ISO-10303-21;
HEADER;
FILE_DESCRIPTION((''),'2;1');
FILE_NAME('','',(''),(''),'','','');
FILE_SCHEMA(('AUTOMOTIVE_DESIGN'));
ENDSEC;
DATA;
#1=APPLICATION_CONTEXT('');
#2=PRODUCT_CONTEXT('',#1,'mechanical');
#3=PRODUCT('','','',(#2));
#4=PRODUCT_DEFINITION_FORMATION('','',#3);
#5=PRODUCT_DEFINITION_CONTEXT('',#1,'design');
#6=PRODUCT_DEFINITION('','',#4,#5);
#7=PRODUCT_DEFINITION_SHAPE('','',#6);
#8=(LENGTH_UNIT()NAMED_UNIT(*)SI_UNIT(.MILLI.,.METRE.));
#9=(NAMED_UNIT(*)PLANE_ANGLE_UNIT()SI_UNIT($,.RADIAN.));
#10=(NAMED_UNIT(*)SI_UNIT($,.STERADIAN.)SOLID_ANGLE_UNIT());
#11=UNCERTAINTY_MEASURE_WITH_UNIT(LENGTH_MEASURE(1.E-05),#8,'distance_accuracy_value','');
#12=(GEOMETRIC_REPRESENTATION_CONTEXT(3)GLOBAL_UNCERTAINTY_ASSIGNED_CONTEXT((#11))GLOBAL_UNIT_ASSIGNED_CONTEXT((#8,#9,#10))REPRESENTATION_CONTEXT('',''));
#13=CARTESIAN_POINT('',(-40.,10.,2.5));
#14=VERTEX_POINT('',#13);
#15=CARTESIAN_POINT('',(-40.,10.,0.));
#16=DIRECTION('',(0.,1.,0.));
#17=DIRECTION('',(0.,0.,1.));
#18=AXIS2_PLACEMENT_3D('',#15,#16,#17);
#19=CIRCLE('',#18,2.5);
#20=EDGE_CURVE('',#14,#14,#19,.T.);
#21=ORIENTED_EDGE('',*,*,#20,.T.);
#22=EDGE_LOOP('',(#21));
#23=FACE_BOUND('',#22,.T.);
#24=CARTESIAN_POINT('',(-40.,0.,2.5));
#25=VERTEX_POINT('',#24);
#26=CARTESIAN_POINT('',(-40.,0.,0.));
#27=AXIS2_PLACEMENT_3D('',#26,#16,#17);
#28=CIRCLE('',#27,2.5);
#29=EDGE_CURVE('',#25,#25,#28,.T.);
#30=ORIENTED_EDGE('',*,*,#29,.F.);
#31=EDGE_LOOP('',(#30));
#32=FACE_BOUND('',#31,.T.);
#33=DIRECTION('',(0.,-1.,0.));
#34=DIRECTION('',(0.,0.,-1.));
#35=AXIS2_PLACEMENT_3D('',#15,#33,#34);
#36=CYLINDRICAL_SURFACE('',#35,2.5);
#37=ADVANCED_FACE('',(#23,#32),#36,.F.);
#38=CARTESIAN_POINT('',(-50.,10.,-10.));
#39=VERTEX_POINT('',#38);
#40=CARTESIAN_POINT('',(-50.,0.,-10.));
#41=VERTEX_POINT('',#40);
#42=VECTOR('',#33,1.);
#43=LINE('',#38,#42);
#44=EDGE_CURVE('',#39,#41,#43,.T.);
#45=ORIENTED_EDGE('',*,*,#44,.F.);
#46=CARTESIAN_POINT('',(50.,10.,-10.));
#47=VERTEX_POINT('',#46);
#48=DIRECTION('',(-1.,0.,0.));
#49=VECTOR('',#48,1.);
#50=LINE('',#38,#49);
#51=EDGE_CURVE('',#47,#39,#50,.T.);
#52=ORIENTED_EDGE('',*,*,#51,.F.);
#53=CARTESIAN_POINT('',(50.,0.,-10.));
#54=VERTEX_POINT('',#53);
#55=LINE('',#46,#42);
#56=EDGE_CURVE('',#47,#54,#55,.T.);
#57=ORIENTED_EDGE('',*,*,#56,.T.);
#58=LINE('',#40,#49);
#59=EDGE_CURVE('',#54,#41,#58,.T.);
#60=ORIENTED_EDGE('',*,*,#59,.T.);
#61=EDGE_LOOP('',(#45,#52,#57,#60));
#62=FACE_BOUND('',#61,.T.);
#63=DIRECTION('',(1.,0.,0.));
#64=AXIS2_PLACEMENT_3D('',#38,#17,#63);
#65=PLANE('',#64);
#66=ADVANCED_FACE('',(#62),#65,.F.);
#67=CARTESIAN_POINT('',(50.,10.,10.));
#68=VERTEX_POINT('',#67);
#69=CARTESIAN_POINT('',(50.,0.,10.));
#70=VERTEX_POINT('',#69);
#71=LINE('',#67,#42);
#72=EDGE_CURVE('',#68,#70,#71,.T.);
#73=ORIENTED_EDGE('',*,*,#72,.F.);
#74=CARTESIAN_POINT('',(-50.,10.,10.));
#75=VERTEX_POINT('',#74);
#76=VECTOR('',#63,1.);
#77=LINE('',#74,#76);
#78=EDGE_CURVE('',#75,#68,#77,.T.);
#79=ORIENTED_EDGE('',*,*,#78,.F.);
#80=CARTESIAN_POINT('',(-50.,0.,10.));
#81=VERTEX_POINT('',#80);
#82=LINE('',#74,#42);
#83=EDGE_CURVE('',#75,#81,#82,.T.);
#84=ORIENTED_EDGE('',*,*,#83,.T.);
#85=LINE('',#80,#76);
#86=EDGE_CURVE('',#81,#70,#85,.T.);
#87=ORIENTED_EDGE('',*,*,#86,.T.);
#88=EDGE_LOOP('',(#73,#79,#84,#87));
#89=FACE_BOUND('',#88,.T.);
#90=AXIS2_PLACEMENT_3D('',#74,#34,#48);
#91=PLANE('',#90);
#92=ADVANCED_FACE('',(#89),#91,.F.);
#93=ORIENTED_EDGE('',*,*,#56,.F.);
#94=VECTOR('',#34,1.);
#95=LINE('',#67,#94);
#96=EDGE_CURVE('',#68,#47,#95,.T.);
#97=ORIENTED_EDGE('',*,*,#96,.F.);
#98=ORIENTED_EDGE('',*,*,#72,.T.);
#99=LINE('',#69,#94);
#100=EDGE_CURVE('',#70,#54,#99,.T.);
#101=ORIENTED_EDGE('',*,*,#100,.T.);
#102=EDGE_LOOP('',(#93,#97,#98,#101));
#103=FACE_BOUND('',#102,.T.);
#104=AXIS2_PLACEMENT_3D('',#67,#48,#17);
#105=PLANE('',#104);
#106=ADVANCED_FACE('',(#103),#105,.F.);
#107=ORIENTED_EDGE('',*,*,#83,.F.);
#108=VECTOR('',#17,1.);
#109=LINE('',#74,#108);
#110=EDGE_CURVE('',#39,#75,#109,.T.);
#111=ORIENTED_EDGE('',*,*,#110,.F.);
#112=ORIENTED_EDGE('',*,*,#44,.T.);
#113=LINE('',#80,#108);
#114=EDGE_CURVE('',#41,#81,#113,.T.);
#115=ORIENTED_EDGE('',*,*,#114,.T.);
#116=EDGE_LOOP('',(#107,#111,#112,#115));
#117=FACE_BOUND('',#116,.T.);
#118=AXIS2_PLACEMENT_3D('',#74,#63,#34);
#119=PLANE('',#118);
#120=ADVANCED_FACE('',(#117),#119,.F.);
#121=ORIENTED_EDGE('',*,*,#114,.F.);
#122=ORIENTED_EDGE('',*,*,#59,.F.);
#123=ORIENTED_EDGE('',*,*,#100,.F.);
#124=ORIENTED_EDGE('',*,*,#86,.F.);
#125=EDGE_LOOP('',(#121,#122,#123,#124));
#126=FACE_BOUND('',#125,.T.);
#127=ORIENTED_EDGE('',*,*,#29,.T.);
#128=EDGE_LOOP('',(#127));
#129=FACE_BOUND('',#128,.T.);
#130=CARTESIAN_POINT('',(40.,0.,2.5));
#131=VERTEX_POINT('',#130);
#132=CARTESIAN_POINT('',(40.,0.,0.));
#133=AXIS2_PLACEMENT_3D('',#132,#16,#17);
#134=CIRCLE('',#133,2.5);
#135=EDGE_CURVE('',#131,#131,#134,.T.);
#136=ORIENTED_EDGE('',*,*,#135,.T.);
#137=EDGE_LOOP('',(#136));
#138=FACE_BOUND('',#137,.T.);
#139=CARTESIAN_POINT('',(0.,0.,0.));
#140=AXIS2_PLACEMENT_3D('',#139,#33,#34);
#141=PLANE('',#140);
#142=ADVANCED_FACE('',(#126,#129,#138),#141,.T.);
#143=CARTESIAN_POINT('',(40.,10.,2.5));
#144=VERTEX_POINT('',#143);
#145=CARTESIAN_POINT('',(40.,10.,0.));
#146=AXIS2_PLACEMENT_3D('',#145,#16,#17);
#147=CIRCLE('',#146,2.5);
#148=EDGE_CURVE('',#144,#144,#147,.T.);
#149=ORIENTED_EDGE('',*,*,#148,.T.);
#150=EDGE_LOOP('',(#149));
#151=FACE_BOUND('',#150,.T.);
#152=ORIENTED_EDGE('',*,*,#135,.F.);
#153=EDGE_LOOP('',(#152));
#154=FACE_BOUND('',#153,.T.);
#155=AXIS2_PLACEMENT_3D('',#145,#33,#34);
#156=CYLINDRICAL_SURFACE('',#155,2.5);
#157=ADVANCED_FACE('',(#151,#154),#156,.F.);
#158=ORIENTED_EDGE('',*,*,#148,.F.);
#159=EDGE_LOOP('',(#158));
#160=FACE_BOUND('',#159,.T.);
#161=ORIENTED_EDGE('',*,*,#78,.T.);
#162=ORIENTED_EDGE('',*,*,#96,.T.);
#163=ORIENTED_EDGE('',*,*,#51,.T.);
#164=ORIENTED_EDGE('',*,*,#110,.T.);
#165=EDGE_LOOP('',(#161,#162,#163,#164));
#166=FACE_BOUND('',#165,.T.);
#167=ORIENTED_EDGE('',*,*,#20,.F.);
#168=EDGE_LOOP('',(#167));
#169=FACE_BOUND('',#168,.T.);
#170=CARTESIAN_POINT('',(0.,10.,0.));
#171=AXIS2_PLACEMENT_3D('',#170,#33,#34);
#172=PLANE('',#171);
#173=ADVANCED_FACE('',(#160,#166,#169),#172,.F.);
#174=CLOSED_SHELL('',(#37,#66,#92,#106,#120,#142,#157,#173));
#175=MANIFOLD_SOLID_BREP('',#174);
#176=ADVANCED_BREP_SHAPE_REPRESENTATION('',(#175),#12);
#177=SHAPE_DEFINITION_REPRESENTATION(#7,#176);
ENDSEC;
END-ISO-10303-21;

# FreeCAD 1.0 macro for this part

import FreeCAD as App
import Part
import Sketcher


def add_polygon(sketch, points):
    """Adds a closed chain of lines whose ends are joined by coincident constraints."""
    first, n = sketch.GeometryCount, len(points)
    for a, b in zip(points, points[1:] + points[:1]):
        sketch.addGeometry(Part.LineSegment(App.Vector(*a, 0), App.Vector(*b, 0)), False)
    for i in range(n):
        sketch.addConstraint(Sketcher.Constraint("Coincident", first + i, 2, first + (i + 1) % n, 1))

doc = App.newDocument("Part")
params = doc.addObject("Spreadsheet::Sheet", "Params")
for row, (alias, value) in enumerate([
    ("sketch1_diameter", "5 mm"),
    ("sketch1_width", "100 mm"),
    ("sketch1_height", "20 mm"),
    ("pad1_length", "10 mm"),
], start=1):
    params.set(f"A{row}", alias)
    params.set(f"B{row}", "=" + value)
    params.setAlias(f"B{row}", alias)

body = doc.addObject("PartDesign::Body", "Body")

# Sketch on XZ plane
sketch1 = body.newObject("Sketcher::SketchObject", "Sketch")
sketch1.AttachmentSupport = (doc.getObject("XZ_Plane"), [""])
sketch1.MapMode = "FlatFace"
add_polygon(sketch1, [(-50, -10), (-50, 10), (50, 10), (50, -10)])  # lines 0-3
sketch1.addGeometry(Part.Circle(App.Vector(-40, 0, 0), App.Vector(0, 0, 1), 2.5), False)  # 4
sketch1.addGeometry(Part.Circle(App.Vector(40, 0, 0), App.Vector(0, 0, 1), 2.5), False)  # 5
sketch1.addConstraint(Sketcher.Constraint("Vertical", 0))
sketch1.addConstraint(Sketcher.Constraint("Horizontal", 1))
sketch1.addConstraint(Sketcher.Constraint("Vertical", 2))
sketch1.addConstraint(Sketcher.Constraint("Horizontal", 3))
sketch1.addConstraint(Sketcher.Constraint("Equal", 4, 5))
sketch1.addConstraint(Sketcher.Constraint("Symmetric", 4, 3, 5, 3, -1, 1))
sketch1.addConstraint(Sketcher.Constraint("Symmetric", 0, 2, 2, 2, -1, 1))
sketch1.addConstraint(Sketcher.Constraint("PointOnObject", 4, 3, -1))
sketch1.addConstraint(Sketcher.Constraint("Diameter", 4, 5.0))
sketch1.addConstraint(Sketcher.Constraint("DistanceX", 1, 1, 1, 2, 100.0))
sketch1.addConstraint(Sketcher.Constraint("DistanceY", 0, 1, 0, 2, 20.0))
sketch1.addConstraint(Sketcher.Constraint("DistanceX", 4, 3, -1, 1, 40.0))
sketch1.setExpression("Constraints[12]", "Params.sketch1_diameter")
sketch1.setExpression("Constraints[13]", "Params.sketch1_width")
sketch1.setExpression("Constraints[14]", "Params.sketch1_height")
pad1 = body.newObject("PartDesign::Pad", "Pad")
pad1.Profile = sketch1
pad1.setExpression("Length", "Params.pad1_length")
pad1.Reversed = True

doc.recompute()
